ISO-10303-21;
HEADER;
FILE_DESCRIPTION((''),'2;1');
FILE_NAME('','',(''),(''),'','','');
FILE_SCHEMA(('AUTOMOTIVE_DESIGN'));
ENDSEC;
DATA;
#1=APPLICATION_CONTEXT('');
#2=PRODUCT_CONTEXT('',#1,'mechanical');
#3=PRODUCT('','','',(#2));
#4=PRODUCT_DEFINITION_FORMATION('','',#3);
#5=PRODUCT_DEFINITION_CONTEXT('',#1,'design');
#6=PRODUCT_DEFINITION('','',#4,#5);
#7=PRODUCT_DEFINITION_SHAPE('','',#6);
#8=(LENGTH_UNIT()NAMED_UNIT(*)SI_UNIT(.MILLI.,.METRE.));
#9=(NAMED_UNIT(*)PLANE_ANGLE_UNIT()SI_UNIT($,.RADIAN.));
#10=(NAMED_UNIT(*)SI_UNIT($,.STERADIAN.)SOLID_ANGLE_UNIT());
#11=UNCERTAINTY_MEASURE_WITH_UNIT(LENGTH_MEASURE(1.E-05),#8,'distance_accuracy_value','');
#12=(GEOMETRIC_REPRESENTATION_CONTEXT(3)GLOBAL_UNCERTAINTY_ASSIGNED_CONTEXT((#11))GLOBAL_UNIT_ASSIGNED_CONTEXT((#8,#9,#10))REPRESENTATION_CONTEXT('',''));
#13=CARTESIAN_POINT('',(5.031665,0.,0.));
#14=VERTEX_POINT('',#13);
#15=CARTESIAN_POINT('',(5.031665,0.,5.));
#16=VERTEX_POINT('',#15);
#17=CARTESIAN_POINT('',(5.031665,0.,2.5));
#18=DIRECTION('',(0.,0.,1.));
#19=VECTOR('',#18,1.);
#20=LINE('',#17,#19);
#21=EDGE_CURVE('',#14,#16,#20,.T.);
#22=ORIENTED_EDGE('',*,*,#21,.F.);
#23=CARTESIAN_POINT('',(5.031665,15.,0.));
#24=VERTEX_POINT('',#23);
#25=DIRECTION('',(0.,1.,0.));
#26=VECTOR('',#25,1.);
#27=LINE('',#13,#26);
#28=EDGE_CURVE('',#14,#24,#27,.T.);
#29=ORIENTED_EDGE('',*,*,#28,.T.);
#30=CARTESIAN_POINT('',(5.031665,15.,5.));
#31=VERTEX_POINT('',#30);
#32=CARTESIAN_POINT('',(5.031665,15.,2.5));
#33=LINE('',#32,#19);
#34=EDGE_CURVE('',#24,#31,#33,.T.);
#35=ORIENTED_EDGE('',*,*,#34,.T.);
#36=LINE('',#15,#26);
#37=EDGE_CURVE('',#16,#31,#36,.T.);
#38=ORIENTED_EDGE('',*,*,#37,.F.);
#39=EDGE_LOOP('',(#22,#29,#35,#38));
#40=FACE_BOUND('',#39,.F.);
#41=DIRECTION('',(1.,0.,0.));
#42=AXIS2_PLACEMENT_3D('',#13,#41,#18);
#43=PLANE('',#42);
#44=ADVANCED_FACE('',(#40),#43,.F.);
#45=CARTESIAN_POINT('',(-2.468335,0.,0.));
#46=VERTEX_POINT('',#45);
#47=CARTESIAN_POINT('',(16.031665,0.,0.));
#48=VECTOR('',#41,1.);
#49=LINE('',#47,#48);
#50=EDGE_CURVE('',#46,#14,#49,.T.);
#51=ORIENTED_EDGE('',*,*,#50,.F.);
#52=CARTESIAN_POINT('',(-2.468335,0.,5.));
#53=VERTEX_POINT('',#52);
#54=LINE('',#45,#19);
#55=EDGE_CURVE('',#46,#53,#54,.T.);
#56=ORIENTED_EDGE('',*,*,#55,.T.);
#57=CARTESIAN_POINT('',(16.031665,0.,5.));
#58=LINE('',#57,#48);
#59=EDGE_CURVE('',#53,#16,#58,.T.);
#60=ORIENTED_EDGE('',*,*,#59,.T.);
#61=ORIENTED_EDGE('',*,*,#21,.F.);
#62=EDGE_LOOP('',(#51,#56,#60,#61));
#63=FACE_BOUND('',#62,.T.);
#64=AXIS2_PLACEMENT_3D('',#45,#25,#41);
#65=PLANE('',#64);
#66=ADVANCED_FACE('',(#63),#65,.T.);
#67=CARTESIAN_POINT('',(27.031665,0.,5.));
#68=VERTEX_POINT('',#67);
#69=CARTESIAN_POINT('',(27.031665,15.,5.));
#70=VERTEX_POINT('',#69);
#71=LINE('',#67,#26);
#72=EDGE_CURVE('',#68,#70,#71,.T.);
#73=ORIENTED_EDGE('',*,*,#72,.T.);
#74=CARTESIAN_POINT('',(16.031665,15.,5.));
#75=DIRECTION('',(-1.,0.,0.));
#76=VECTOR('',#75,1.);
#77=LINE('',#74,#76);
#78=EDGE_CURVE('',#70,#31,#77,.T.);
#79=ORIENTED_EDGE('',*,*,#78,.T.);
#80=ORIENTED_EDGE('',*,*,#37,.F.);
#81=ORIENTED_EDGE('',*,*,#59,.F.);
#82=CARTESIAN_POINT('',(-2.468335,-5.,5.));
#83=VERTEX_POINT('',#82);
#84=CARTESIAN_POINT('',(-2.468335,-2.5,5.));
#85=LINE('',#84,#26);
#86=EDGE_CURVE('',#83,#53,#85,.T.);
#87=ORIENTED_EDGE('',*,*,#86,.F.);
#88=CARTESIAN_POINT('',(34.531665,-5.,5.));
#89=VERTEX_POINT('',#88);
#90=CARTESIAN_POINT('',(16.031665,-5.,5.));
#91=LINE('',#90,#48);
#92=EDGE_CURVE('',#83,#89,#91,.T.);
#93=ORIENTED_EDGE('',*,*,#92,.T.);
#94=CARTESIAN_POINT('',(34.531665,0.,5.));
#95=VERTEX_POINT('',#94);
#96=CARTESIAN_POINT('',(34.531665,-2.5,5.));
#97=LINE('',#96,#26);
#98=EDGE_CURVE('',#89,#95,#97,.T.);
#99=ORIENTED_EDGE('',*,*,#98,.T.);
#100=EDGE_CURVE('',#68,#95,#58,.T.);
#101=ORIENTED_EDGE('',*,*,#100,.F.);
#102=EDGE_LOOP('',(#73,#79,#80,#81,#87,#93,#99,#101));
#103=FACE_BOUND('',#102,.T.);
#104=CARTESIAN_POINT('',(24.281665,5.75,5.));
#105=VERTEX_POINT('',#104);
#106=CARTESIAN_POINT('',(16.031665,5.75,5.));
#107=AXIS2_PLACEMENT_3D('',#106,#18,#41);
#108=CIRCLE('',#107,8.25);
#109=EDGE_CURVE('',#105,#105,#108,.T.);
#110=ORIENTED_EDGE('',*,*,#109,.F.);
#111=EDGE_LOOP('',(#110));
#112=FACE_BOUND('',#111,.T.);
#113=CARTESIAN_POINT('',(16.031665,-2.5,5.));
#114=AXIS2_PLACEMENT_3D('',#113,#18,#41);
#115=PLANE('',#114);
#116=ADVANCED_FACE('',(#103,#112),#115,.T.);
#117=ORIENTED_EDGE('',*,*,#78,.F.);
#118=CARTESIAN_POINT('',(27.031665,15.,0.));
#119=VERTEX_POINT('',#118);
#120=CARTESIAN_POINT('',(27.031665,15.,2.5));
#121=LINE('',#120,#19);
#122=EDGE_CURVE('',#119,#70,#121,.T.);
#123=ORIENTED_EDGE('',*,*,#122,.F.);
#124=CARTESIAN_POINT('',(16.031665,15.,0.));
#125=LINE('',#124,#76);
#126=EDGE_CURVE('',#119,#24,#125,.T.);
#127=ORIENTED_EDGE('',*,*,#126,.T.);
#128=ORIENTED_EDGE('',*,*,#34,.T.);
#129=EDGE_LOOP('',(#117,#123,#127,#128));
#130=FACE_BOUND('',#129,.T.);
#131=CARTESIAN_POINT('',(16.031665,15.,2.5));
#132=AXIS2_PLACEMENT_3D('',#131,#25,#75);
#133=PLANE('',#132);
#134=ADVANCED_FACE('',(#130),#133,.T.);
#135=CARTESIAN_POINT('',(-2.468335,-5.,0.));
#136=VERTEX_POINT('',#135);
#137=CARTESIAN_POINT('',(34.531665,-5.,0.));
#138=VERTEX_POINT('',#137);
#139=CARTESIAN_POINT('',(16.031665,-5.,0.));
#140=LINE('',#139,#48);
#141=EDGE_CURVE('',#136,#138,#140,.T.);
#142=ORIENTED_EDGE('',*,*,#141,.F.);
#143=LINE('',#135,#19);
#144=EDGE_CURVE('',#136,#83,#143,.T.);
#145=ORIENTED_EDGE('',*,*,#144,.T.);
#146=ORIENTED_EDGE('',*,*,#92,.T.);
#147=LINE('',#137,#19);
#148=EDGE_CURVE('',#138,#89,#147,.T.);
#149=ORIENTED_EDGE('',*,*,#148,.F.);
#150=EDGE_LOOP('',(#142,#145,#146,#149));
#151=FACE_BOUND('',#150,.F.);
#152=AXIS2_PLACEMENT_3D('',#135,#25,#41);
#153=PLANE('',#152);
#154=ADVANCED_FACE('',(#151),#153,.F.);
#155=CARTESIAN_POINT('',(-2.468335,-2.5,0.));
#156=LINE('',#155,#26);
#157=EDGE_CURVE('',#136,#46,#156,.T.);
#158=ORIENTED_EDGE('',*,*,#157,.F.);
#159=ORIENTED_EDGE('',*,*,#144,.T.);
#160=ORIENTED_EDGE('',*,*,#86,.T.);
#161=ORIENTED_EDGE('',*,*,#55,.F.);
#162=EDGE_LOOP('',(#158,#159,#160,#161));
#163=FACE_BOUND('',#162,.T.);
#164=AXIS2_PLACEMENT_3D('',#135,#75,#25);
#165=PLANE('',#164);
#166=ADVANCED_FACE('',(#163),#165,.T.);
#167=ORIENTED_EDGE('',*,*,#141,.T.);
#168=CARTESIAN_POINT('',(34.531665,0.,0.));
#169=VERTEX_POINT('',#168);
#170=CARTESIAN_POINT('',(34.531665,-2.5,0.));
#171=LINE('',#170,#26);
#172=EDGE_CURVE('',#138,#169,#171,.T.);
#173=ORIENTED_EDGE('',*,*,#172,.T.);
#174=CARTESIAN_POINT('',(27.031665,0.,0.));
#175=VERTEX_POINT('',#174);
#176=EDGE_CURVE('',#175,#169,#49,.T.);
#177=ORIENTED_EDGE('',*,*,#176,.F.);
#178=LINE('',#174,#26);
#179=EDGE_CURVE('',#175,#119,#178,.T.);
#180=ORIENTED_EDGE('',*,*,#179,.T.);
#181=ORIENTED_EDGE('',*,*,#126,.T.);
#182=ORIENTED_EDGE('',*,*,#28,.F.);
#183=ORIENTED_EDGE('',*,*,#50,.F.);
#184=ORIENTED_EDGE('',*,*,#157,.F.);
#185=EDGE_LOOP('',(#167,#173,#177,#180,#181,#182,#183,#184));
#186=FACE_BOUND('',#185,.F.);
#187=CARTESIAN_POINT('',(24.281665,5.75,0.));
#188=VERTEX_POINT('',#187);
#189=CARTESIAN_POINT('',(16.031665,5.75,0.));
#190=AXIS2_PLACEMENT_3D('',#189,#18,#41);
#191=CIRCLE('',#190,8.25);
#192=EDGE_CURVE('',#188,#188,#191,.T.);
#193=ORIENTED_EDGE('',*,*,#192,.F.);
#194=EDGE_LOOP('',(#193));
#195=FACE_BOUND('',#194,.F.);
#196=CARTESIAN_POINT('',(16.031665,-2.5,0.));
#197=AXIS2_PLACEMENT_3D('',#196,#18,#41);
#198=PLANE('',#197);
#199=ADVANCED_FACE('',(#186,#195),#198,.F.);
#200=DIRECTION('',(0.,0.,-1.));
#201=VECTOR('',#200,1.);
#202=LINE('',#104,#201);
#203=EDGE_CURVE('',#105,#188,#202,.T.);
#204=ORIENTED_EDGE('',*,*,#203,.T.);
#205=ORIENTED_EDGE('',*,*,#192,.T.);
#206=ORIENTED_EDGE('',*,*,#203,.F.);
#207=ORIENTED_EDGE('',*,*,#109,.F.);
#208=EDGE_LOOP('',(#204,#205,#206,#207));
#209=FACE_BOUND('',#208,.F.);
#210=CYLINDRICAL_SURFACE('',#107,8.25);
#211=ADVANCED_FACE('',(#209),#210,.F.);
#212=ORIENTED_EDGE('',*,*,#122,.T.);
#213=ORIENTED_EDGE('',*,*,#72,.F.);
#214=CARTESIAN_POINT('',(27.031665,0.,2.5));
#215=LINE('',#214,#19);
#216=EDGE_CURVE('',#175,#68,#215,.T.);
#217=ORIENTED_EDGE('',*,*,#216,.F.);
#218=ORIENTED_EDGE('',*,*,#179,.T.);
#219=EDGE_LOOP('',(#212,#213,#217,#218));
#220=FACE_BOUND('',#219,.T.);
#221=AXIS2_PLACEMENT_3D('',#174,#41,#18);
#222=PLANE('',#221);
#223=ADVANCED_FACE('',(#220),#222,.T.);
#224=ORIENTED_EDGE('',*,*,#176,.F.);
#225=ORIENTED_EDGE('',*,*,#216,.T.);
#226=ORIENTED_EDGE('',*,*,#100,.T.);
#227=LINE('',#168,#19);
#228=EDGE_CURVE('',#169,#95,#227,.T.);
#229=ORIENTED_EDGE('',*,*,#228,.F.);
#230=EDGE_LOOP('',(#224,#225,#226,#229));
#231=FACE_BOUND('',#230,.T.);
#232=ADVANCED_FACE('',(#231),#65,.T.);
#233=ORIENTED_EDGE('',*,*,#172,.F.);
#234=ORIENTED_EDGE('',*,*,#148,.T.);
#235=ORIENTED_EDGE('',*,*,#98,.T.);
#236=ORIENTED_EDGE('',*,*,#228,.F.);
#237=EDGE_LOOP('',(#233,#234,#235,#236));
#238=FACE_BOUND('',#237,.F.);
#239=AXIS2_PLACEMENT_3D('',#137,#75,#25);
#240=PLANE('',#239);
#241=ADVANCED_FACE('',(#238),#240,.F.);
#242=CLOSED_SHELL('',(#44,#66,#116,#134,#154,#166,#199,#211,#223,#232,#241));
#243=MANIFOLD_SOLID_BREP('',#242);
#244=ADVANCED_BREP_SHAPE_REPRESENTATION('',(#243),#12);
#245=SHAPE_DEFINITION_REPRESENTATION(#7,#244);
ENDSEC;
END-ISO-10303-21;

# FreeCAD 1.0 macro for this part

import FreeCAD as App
import Part
import Sketcher
from FreeCAD import Vector

doc = App.newDocument("Part")
body = doc.addObject("PartDesign::Body", "Body")

# Sketch on XY plane
sketch1 = body.newObject("Sketcher::SketchObject", "Sketch")
sketch1.AttachmentSupport = (doc.getObject("XY_Plane"), [""])
sketch1.MapMode = "FlatFace"
sketch1.addGeometry(Part.LineSegment(Vector(-2, 0, 0), Vector(-2, -5, 0)), False)
sketch1.addGeometry(Part.LineSegment(Vector(-2, -5, 0), Vector(35, -5, 0)), False)
sketch1.addGeometry(Part.LineSegment(Vector(35, -5, 0), Vector(35, 0, 0)), False)
sketch1.addGeometry(Part.LineSegment(Vector(35, 0, 0), Vector(-2, 0, 0)), False)
sketch1.addConstraint(Sketcher.Constraint("Coincident", 0, 2, 1, 1))
sketch1.addConstraint(Sketcher.Constraint("Coincident", 1, 2, 2, 1))
sketch1.addConstraint(Sketcher.Constraint("Coincident", 2, 2, 3, 1))
sketch1.addConstraint(Sketcher.Constraint("Coincident", 3, 2, 0, 1))
sketch1.addConstraint(Sketcher.Constraint("Vertical", 0))
sketch1.addConstraint(Sketcher.Constraint("Horizontal", 1))
sketch1.addConstraint(Sketcher.Constraint("Vertical", 2))
sketch1.addConstraint(Sketcher.Constraint("Horizontal", 3))
sketch1.addConstraint(Sketcher.Constraint("PointOnObject", 2, 2, -1))
sketch1.addConstraint(Sketcher.Constraint("DistanceX", 1, 1, 1, 2, 37.0))
sketch1.addConstraint(Sketcher.Constraint("DistanceY", 0, 2, 0, 1, 5.0))
sketch1.addConstraint(Sketcher.Constraint("DistanceX", 0, 2, -1, 1, 2.468335))
pad1 = body.newObject("PartDesign::Pad", "Pad")
pad1.Profile = sketch1
pad1.Length = 5

# Sketch on XZ plane
sketch2 = body.newObject("Sketcher::SketchObject", "Sketch001")
sketch2.AttachmentSupport = (doc.getObject("XZ_Plane"), [""])
sketch2.MapMode = "FlatFace"
sketch2.addGeometry(Part.LineSegment(Vector(27, 5, 0), Vector(27, 0, 0)), False)
sketch2.addGeometry(Part.LineSegment(Vector(27, 0, 0), Vector(5, 0, 0)), False)
sketch2.addGeometry(Part.LineSegment(Vector(5, 0, 0), Vector(5, 5, 0)), False)
sketch2.addGeometry(Part.LineSegment(Vector(5, 5, 0), Vector(27, 5, 0)), False)
sketch2.addConstraint(Sketcher.Constraint("Coincident", 0, 2, 1, 1))
sketch2.addConstraint(Sketcher.Constraint("Coincident", 1, 2, 2, 1))
sketch2.addConstraint(Sketcher.Constraint("Coincident", 2, 2, 3, 1))
sketch2.addConstraint(Sketcher.Constraint("Coincident", 3, 2, 0, 1))
sketch2.addConstraint(Sketcher.Constraint("Vertical", 0))
sketch2.addConstraint(Sketcher.Constraint("Horizontal", 1))
sketch2.addConstraint(Sketcher.Constraint("Vertical", 2))
sketch2.addConstraint(Sketcher.Constraint("Horizontal", 3))
sketch2.addConstraint(Sketcher.Constraint("PointOnObject", 0, 2, -1))
sketch2.addConstraint(Sketcher.Constraint("DistanceX", 1, 2, 1, 1, 22.0))
sketch2.addConstraint(Sketcher.Constraint("DistanceY", 0, 2, 0, 1, 5.0))
sketch2.addConstraint(Sketcher.Constraint("DistanceX", -1, 1, 0, 2, 27.031665))
pad2 = body.newObject("PartDesign::Pad", "Pad001")
pad2.Profile = sketch2
pad2.Length = 15
pad2.Reversed = True

# Sketch on XY plane
sketch3 = body.newObject("Sketcher::SketchObject", "Sketch002")
sketch3.AttachmentSupport = (doc.getObject("XY_Plane"), [""])
sketch3.MapMode = "FlatFace"
sketch3.AttachmentOffset = App.Placement(Vector(0, 0, 5), App.Rotation())
sketch3.addGeometry(Part.Circle(Vector(16, 6, 0), Vector(0, 0, 1), 8), False)
sketch3.addConstraint(Sketcher.Constraint("Diameter", 0, 16.5))
sketch3.addConstraint(Sketcher.Constraint("DistanceY", -1, 1, 0, 3, 5.75))
sketch3.addConstraint(Sketcher.Constraint("DistanceX", -1, 1, 0, 3, 16.031665))
pocket1 = body.newObject("PartDesign::Pocket", "Pocket")
pocket1.Profile = sketch3
pocket1.Length = 25.4

doc.recompute()
